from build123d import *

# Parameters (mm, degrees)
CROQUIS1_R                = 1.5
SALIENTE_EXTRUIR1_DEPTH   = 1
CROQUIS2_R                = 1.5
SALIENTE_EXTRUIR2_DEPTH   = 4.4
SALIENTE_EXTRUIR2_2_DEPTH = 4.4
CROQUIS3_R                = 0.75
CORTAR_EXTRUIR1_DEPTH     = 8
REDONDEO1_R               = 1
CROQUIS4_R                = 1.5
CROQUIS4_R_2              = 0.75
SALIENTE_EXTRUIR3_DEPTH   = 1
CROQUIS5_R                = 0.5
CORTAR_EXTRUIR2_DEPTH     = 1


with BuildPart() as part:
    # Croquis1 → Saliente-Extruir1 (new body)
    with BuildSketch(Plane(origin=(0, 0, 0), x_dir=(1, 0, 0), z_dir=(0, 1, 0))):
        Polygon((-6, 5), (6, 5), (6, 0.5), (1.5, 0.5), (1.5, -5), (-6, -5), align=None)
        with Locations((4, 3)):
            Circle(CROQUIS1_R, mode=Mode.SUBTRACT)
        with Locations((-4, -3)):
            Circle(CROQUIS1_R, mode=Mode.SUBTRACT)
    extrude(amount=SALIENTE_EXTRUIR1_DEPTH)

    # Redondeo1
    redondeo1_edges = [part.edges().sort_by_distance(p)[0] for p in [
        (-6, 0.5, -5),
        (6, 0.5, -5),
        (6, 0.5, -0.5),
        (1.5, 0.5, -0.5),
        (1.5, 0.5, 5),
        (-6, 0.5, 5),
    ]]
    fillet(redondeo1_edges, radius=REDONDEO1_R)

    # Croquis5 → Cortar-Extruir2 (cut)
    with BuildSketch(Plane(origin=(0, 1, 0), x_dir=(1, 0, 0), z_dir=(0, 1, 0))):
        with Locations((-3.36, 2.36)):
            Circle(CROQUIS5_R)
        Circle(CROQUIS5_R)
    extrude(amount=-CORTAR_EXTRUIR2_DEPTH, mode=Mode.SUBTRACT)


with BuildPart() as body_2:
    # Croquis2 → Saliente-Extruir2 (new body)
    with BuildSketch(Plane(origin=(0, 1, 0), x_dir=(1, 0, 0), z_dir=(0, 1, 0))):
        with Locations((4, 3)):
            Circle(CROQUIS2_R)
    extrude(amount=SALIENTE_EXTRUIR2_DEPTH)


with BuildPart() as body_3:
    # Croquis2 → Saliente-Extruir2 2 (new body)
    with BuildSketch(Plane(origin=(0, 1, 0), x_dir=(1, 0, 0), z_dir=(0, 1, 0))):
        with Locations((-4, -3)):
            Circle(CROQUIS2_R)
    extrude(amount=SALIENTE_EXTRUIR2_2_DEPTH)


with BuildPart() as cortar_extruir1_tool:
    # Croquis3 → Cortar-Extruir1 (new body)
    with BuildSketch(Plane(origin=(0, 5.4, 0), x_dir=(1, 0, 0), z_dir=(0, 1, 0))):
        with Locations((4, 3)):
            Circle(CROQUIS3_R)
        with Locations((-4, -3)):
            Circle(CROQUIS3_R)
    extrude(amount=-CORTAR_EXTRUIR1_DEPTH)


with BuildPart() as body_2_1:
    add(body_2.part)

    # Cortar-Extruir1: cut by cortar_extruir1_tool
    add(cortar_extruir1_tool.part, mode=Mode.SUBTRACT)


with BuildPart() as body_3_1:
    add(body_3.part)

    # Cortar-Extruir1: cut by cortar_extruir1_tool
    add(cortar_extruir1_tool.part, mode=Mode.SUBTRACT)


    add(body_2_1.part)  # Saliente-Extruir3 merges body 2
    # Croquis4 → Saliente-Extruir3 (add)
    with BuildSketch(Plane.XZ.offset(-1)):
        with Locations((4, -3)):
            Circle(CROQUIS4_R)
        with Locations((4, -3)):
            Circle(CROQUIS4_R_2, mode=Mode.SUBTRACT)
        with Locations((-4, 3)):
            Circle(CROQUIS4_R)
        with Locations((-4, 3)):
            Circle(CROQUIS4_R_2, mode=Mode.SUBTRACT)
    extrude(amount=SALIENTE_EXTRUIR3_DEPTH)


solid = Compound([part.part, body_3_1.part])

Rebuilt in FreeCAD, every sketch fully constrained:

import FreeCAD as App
import Part
import Sketcher

V = App.Vector


def edges_at(feature, points):
    """Names of the edges that pass closest to the given points."""
    edges = feature.Shape.Edges
    near = lambda p: min(range(len(edges)), key=lambda i: edges[i].distToShape(Part.Vertex(*p))[0])
    return sorted({f"Edge{near(p) + 1}" for p in points})

doc = App.newDocument("Part")
params = doc.addObject("Spreadsheet::Sheet", "Params")
for row, (alias, value) in enumerate([
    ("sketch1_diameter", "3 mm"),
    ("sketch1_width", "12 mm"),
    ("sketch1_height", "10 mm"),
    ("sketch1_width2", "7.5 mm"),
    ("pad1_length", "1 mm"),
    ("fillet_radius", "1 mm"),
    ("sketch2_diameter", "1 mm"),
    ("pocket1_length", "1 mm"),
    ("sketch3_diameter", "3 mm"),
    ("pad2_length", "4.4 mm"),
    ("sketch4_diameter", "3 mm"),
    ("pad3_length", "4.4 mm"),
    ("sketch5_diameter", "1.5 mm"),
    ("pad4_length", "8 mm"),
    ("sketch6_diameter", "3 mm"),
    ("sketch6_diameter2", "1.5 mm"),
    ("pad5_length", "1 mm"),
], start=1):
    params.set(f"A{row}", alias)
    params.set(f"B{row}", "=" + value)
    params.setAlias(f"B{row}", alias)

body = doc.addObject("PartDesign::Body", "Body")

# Sketch on XZ plane
sketch1 = doc.addObject("Sketcher::SketchObject", "Sketch")
body.addObject(sketch1)
sketch1.AttachmentSupport = (doc.XZ_Plane, [""])
sketch1.MapMode = "FlatFace"
sketch1.addGeometry([
    Part.LineSegment(V(6, -5, 0), V(-6, -5, 0)),  # 0
    Part.LineSegment(V(-6, -5, 0), V(-6, 5, 0)),  # 1
    Part.LineSegment(V(-6, 5, 0), V(1.5, 5, 0)),  # 2
    Part.LineSegment(V(1.5, 5, 0), V(1.5, -0.5, 0)),  # 3
    Part.LineSegment(V(1.5, -0.5, 0), V(6, -0.5, 0)),  # 4
    Part.LineSegment(V(6, -0.5, 0), V(6, -5, 0)),  # 5
    Part.Circle(V(-4, 3, 0), V(0, 0, 1), 1.5),  # 6
    Part.Circle(V(4, -3, 0), V(0, 0, 1), 1.5),  # 7
], False)
sketch1.addConstraint([
    Sketcher.Constraint("Coincident", 0, 2, 1, 1),
    Sketcher.Constraint("Coincident", 1, 2, 2, 1),
    Sketcher.Constraint("Coincident", 2, 2, 3, 1),
    Sketcher.Constraint("Coincident", 3, 2, 4, 1),
    Sketcher.Constraint("Coincident", 4, 2, 5, 1),
    Sketcher.Constraint("Coincident", 5, 2, 0, 1),
    Sketcher.Constraint("Horizontal", 0),
    Sketcher.Constraint("Vertical", 1),
    Sketcher.Constraint("Horizontal", 2),
    Sketcher.Constraint("Vertical", 3),
    Sketcher.Constraint("Horizontal", 4),
    Sketcher.Constraint("Vertical", 5),
    Sketcher.Constraint("Equal", 6, 7),
    Sketcher.Constraint("Symmetric", 6, 3, 7, 3, -1, 1),
    Sketcher.Constraint("Symmetric", 1, 2, 5, 2, -1, 1),
    Sketcher.Constraint("Equal", 4, 5),
    Sketcher.Constraint("Diameter", 6, 3.0),
    Sketcher.Constraint("DistanceX", 0, 2, 0, 1, 12.0),
    Sketcher.Constraint("DistanceY", 1, 1, 1, 2, 10.0),
    Sketcher.Constraint("DistanceX", 2, 1, 2, 2, 7.5),
    Sketcher.Constraint("DistanceX", 6, 3, -1, 1, 4.0),
    Sketcher.Constraint("DistanceY", -1, 1, 6, 3, 3.0),
])
sketch1.setExpression("Constraints[16]", "Params.sketch1_diameter")
sketch1.setExpression("Constraints[17]", "Params.sketch1_width")
sketch1.setExpression("Constraints[18]", "Params.sketch1_height")
sketch1.setExpression("Constraints[19]", "Params.sketch1_width2")
pad1 = doc.addObject("PartDesign::Pad", "Pad")
body.addObject(pad1)
pad1.Profile = sketch1
pad1.setExpression("Length", "Params.pad1_length")
pad1.Reversed = True
doc.recompute()

fillet = doc.addObject("PartDesign::Fillet", "Fillet")
body.addObject(fillet)
fillet.Base = (pad1, edges_at(pad1, [
    (-6, 0.5, -5),
    (6, 0.5, -5),
    (6, 0.5, -0.5),
    (1.5, 0.5, -0.5),
    (1.5, 0.5, 5),
    (-6, 0.5, 5),
]))
fillet.setExpression("Radius", "Params.fillet_radius")

# Sketch on XZ plane
sketch2 = doc.addObject("Sketcher::SketchObject", "Sketch001")
body.addObject(sketch2)
sketch2.AttachmentSupport = (doc.XZ_Plane, [""])
sketch2.MapMode = "FlatFace"
sketch2.AttachmentOffset = App.Placement(V(0, 0, -1), App.Rotation())
sketch2.addGeometry([
    Part.Circle(V(-3.36, -2.36, 0), V(0, 0, 1), 0.5),
    Part.Circle(V(0, 0, 0), V(0, 0, 1), 0.5),
], False)
sketch2.addConstraint([
    Sketcher.Constraint("Coincident", 1, 3, -1, 1),
    Sketcher.Constraint("Equal", 0, 1),
    Sketcher.Constraint("Diameter", 0, 1.0),
    Sketcher.Constraint("DistanceX", 0, 3, -1, 1, 3.36),
    Sketcher.Constraint("DistanceY", 0, 3, -1, 1, 2.36),
])
sketch2.setExpression("Constraints[2]", "Params.sketch2_diameter")
pocket1 = doc.addObject("PartDesign::Pocket", "Pocket")
body.addObject(pocket1)
pocket1.Profile = sketch2
pocket1.setExpression("Length", "Params.pocket1_length")
pocket1.Reversed = True
body2 = doc.addObject("PartDesign::Body", "Body001")

# Sketch on XZ plane
sketch3 = doc.addObject("Sketcher::SketchObject", "Sketch002")
body2.addObject(sketch3)
sketch3.AttachmentSupport = (doc.getObject("XZ_Plane001"), [""])
sketch3.MapMode = "FlatFace"
sketch3.AttachmentOffset = App.Placement(V(0, 0, -1), App.Rotation())
sketch3.addGeometry(Part.Circle(V(4, -3, 0), V(0, 0, 1), 1.5), False)
sketch3.addConstraint([
    Sketcher.Constraint("Diameter", 0, 3.0),
    Sketcher.Constraint("DistanceX", -1, 1, 0, 3, 4.0),
    Sketcher.Constraint("DistanceY", 0, 3, -1, 1, 3.0),
])
sketch3.setExpression("Constraints[0]", "Params.sketch3_diameter")
pad2 = doc.addObject("PartDesign::Pad", "Pad001")
body2.addObject(pad2)
pad2.Profile = sketch3
pad2.setExpression("Length", "Params.pad2_length")
pad2.Reversed = True
body3 = doc.addObject("PartDesign::Body", "Body002")

# Sketch on XZ plane
sketch4 = doc.addObject("Sketcher::SketchObject", "Sketch003")
body3.addObject(sketch4)
sketch4.AttachmentSupport = (doc.getObject("XZ_Plane002"), [""])
sketch4.MapMode = "FlatFace"
sketch4.AttachmentOffset = App.Placement(V(0, 0, -1), App.Rotation())
sketch4.addGeometry(Part.Circle(V(-4, 3, 0), V(0, 0, 1), 1.5), False)
sketch4.addConstraint([
    Sketcher.Constraint("Diameter", 0, 3.0),
    Sketcher.Constraint("DistanceX", 0, 3, -1, 1, 4.0),
    Sketcher.Constraint("DistanceY", -1, 1, 0, 3, 3.0),
])
sketch4.setExpression("Constraints[0]", "Params.sketch4_diameter")
pad3 = doc.addObject("PartDesign::Pad", "Pad002")
body3.addObject(pad3)
pad3.Profile = sketch4
pad3.setExpression("Length", "Params.pad3_length")
pad3.Reversed = True
body4 = doc.addObject("PartDesign::Body", "Body003")
body4.AllowCompound = True

# Sketch on XZ plane
sketch5 = doc.addObject("Sketcher::SketchObject", "Sketch004")
body4.addObject(sketch5)
sketch5.AttachmentSupport = (doc.getObject("XZ_Plane003"), [""])
sketch5.MapMode = "FlatFace"
sketch5.AttachmentOffset = App.Placement(V(0, 0, -5.4), App.Rotation())
sketch5.addGeometry([
    Part.Circle(V(4, -3, 0), V(0, 0, 1), 0.75),
    Part.Circle(V(-4, 3, 0), V(0, 0, 1), 0.75),
], False)
sketch5.addConstraint([
    Sketcher.Constraint("Equal", 0, 1),
    Sketcher.Constraint("Symmetric", 0, 3, 1, 3, -1, 1),
    Sketcher.Constraint("Diameter", 0, 1.5),
    Sketcher.Constraint("DistanceX", -1, 1, 0, 3, 4.0),
    Sketcher.Constraint("DistanceY", 0, 3, -1, 1, 3.0),
])
sketch5.setExpression("Constraints[2]", "Params.sketch5_diameter")
pad4 = doc.addObject("PartDesign::Pad", "Pad003")
body4.addObject(pad4)
pad4.Profile = sketch5
pad4.setExpression("Length", "Params.pad4_length")
doc.recompute()

body5 = doc.addObject("PartDesign::Body", "Body004")
body5.BaseFeature = body4
boolean = doc.addObject("PartDesign::Boolean", "Boolean")
body2.addObject(boolean)
boolean.Type = "Cut"
boolean.addObjects([body5])
doc.recompute()
body3.AllowCompound = True
doc.recompute()

boolean2 = doc.addObject("PartDesign::Boolean", "Boolean001")
body3.addObject(boolean2)
boolean2.Type = "Cut"
boolean2.addObjects([body4])
doc.recompute()

boolean3 = doc.addObject("PartDesign::Boolean", "Boolean002")
body3.addObject(boolean3)
boolean3.Type = "Fuse"
boolean3.addObjects([body2])

# Sketch on XZ plane
sketch6 = doc.addObject("Sketcher::SketchObject", "Sketch005")
body3.addObject(sketch6)
sketch6.AttachmentSupport = (doc.getObject("XZ_Plane002"), [""])
sketch6.MapMode = "FlatFace"
sketch6.AttachmentOffset = App.Placement(V(0, 0, -1), App.Rotation())
sketch6.addGeometry([
    Part.Circle(V(4, -3, 0), V(0, 0, 1), 1.5),
    Part.Circle(V(4, -3, 0), V(0, 0, 1), 0.75),
    Part.Circle(V(-4, 3, 0), V(0, 0, 1), 1.5),
    Part.Circle(V(-4, 3, 0), V(0, 0, 1), 0.75),
], False)
sketch6.addConstraint([
    Sketcher.Constraint("Coincident", 1, 3, 0, 3),
    Sketcher.Constraint("Coincident", 3, 3, 2, 3),
    Sketcher.Constraint("Equal", 0, 2),
    Sketcher.Constraint("Equal", 1, 3),
    Sketcher.Constraint("Symmetric", 0, 3, 2, 3, -1, 1),
    Sketcher.Constraint("Diameter", 0, 3.0),
    Sketcher.Constraint("Diameter", 1, 1.5),
    Sketcher.Constraint("DistanceX", -1, 1, 0, 3, 4.0),
    Sketcher.Constraint("DistanceY", 0, 3, -1, 1, 3.0),
])
sketch6.setExpression("Constraints[5]", "Params.sketch6_diameter")
sketch6.setExpression("Constraints[6]", "Params.sketch6_diameter2")
pad5 = doc.addObject("PartDesign::Pad", "Pad004")
body3.addObject(pad5)
pad5.Profile = sketch6
pad5.setExpression("Length", "Params.pad5_length")

doc.recompute()
